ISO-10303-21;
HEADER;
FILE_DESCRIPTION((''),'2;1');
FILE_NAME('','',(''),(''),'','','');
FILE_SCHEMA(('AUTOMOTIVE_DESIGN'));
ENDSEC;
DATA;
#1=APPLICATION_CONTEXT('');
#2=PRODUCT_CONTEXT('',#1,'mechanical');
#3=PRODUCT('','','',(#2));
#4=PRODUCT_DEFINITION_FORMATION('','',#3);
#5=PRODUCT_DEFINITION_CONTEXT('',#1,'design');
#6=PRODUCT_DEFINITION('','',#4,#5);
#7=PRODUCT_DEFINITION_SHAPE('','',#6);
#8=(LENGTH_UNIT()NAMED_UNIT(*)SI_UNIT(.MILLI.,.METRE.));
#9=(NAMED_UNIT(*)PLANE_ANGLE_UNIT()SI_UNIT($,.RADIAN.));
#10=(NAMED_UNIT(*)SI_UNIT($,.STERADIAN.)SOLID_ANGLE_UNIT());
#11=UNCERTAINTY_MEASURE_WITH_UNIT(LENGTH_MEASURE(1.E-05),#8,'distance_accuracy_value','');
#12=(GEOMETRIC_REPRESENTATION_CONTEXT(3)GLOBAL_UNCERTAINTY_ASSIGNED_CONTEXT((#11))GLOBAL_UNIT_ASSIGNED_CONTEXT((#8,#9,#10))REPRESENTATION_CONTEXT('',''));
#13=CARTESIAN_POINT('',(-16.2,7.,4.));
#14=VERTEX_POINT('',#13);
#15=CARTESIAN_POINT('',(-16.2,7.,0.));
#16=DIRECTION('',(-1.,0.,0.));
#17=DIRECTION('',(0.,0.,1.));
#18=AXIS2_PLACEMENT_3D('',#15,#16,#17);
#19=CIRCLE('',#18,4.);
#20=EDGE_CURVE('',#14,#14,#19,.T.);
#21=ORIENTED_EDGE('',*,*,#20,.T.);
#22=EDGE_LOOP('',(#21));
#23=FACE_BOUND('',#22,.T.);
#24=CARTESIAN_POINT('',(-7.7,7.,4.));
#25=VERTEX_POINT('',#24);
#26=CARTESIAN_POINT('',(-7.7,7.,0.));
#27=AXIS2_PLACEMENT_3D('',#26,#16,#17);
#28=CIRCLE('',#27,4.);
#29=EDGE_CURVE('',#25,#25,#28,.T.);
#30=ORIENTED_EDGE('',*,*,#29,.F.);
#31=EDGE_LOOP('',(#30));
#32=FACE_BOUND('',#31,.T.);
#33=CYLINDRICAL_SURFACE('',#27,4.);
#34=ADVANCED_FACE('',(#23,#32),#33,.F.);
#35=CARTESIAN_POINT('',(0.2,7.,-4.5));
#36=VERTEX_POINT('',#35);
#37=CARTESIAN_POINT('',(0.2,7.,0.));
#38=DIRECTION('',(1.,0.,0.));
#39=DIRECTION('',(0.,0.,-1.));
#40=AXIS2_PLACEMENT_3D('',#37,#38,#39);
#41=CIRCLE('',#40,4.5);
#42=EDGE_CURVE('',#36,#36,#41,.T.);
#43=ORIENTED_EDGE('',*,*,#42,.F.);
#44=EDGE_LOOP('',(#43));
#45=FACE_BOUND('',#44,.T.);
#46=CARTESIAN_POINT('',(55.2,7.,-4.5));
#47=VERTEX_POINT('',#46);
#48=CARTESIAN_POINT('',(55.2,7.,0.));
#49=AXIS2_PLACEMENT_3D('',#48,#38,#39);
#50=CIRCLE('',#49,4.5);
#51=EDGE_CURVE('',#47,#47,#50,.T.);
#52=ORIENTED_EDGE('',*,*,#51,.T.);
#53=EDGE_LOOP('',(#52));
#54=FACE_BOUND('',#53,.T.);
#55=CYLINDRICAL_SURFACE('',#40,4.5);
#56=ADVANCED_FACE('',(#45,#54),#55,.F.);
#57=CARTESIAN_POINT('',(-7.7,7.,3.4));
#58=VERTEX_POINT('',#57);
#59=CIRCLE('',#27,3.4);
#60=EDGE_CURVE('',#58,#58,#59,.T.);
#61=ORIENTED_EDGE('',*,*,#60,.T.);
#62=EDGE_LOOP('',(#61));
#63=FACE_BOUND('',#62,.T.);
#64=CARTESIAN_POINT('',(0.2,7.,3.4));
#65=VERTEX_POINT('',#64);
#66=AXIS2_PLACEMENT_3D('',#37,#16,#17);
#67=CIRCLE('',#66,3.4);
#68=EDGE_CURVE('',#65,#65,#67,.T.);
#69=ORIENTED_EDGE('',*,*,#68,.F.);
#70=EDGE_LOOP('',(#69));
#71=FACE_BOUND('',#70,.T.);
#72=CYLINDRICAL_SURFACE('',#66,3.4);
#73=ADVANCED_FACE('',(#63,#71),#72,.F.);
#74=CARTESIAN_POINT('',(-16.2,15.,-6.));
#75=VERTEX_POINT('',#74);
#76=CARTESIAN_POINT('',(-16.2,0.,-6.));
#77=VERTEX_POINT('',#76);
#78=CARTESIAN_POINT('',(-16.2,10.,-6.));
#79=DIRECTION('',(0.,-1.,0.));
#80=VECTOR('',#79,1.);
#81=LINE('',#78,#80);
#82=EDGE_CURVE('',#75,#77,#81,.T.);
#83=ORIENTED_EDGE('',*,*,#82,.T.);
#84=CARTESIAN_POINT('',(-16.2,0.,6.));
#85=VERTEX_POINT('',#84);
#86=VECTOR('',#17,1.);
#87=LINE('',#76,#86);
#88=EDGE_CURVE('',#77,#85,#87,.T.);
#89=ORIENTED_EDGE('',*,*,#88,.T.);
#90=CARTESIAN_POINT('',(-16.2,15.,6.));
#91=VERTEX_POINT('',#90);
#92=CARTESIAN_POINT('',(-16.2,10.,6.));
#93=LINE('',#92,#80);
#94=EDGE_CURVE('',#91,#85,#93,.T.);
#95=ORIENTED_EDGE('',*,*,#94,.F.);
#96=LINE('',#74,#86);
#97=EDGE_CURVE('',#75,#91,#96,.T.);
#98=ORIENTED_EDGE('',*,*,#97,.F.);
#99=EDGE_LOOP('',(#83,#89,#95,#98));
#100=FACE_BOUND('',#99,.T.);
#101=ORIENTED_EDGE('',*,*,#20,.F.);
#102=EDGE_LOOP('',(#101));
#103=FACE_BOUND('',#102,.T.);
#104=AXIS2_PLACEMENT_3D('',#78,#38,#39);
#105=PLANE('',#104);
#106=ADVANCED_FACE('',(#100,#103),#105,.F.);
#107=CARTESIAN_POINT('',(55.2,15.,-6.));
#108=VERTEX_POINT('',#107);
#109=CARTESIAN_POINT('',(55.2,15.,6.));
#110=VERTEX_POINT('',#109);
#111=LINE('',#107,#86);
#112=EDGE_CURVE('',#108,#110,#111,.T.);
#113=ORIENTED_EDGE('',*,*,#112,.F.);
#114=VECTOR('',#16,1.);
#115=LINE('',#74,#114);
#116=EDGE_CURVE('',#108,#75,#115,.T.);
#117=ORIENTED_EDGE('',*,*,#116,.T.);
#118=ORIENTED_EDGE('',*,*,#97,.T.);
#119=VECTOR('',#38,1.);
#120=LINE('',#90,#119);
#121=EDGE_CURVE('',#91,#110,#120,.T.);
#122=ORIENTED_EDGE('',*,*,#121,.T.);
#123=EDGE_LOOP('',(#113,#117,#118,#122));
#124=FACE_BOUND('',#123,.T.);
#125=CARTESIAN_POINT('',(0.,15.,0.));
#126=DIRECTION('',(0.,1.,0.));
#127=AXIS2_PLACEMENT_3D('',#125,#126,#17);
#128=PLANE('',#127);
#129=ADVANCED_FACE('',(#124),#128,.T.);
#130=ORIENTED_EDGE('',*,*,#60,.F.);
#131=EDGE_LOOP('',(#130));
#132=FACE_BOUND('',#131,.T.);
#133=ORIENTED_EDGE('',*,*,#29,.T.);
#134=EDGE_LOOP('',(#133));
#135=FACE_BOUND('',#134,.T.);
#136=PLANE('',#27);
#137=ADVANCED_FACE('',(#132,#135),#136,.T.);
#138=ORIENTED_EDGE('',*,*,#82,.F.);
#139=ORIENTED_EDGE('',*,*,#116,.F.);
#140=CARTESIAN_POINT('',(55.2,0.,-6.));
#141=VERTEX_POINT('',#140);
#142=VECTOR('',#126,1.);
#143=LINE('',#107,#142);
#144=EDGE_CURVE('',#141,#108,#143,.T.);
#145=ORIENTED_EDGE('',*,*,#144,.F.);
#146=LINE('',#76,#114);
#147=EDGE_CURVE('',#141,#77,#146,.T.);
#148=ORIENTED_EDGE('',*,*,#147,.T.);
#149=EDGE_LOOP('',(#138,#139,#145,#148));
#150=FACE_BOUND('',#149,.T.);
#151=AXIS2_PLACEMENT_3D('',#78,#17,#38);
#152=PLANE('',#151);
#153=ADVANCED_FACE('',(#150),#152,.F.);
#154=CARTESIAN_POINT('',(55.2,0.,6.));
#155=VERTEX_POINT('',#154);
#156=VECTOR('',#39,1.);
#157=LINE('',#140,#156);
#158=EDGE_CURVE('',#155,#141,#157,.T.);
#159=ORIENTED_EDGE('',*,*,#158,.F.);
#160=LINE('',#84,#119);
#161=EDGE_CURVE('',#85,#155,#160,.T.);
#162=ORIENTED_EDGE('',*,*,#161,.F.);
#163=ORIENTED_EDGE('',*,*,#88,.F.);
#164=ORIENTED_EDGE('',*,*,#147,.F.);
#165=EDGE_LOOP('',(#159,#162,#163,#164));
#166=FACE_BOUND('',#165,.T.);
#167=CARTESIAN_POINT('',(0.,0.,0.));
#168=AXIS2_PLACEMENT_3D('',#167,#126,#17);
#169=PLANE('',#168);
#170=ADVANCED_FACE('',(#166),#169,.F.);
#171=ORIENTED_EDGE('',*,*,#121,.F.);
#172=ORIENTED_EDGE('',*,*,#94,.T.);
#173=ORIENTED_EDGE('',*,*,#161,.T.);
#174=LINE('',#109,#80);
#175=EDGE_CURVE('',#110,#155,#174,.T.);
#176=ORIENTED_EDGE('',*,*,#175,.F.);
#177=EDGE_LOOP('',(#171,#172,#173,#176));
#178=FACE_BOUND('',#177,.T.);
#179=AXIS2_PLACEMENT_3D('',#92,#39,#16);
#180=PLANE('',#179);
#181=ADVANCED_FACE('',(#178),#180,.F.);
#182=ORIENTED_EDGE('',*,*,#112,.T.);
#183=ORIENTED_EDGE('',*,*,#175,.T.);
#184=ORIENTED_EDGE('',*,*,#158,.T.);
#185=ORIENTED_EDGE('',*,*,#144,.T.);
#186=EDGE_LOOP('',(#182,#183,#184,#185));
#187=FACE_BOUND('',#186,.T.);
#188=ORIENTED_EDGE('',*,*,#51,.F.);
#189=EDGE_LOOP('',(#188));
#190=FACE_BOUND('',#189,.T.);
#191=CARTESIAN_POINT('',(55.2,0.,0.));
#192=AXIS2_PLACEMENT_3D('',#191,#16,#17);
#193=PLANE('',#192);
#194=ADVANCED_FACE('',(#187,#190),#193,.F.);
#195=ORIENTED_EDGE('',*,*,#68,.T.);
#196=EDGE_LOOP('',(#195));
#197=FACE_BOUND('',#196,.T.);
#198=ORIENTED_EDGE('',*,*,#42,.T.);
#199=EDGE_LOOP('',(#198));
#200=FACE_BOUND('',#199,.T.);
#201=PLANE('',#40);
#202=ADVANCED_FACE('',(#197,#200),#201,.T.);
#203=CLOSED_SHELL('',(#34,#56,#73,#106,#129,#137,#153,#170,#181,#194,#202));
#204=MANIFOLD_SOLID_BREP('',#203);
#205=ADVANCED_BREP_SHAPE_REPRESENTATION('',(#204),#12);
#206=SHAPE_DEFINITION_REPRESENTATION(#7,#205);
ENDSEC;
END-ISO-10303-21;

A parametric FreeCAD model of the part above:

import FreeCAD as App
import Part
import Sketcher
Q = App.Units.Quantity


def add_polygon(sketch, points):
    """Adds a closed chain of lines whose ends are joined by coincident constraints."""
    first, n = sketch.GeometryCount, len(points)
    for a, b in zip(points, points[1:] + points[:1]):
        sketch.addGeometry(Part.LineSegment(App.Vector(*a, 0), App.Vector(*b, 0)), False)
    for i in range(n):
        sketch.addConstraint(Sketcher.Constraint("Coincident", first + i, 2, first + (i + 1) % n, 1))

doc = App.newDocument("Part")
params = doc.addObject("Spreadsheet::Sheet", "Params")
for row, (alias, value) in enumerate([
    ("sketch1_height", "12 mm"),
    ("sketch1_width", "32.4 mm"),
    ("pad1_length", "10 mm"),
    ("sketch2_diameter", "8 mm"),
    ("pocket1_length", "8.5 mm"),
    ("sketch3_diameter", "6.8 mm"),
    ("pocket2_length", "7.9 mm"),
    ("sketch4_diameter", "9 mm"),
    ("pocket3_length", "16 mm"),
    ("sketch5_width", "32.4 mm"),
    ("pad2_length", "5 mm"),
    ("sketch6_width", "7.9 mm"),
    ("pad3_length", "5 mm"),
    ("sketch7_width", "16 mm"),
    ("sketch7_width2", "32.4 mm"),
    ("sketch7_width3", "7.9 mm"),
    ("pad4_length", "5 mm"),
    ("sketch8_width", "5 mm"),
    ("sketch8_height", "12 mm"),
    ("pad5_length", "32.4 mm"),
    ("sketch9_diameter", "8 mm"),
    ("pocket4_length", "8.5 mm"),
    ("sketch10_diameter", "6.8 mm"),
    ("pocket5_length", "7.9 mm"),
    ("sketch11_diameter", "9 mm"),
    ("pocket6_length", "16 mm"),
    ("sketch12_width", "15 mm"),
    ("sketch12_height", "12 mm"),
    ("pad6_length", "39 mm"),
    ("sketch13_diameter", "9 mm"),
    ("pocket7_length", "39 mm"),
], start=1):
    params.set(f"A{row}", alias)
    params.set(f"B{row}", "=" + value)
    params.setAlias(f"B{row}", alias)

body = doc.addObject("PartDesign::Body", "Body")

# Sketch on XZ plane
sketch1 = body.newObject("Sketcher::SketchObject", "Sketch")
sketch1.AttachmentSupport = (doc.getObject("XZ_Plane"), [""])
sketch1.MapMode = "FlatFace"
add_polygon(sketch1, [(-16, -6), (-16, 6), (16, 6), (16, -6)])  # lines 0-3
sketch1.addConstraint([
    Sketcher.Constraint("Vertical", 0),
    Sketcher.Constraint("Horizontal", 1),
    Sketcher.Constraint("Vertical", 2),
    Sketcher.Constraint("Horizontal", 3),
    Sketcher.Constraint("Symmetric", 0, 2, 2, 2, -1, 1),
    Sketcher.Constraint("DistanceY", 0, 1, 0, 2, Q("12 mm")),
    Sketcher.Constraint("DistanceX", 1, 1, 1, 2, Q("32.4 mm")),
])
sketch1.setExpression("Constraints[9]", "Params.sketch1_height")
sketch1.setExpression("Constraints[10]", "Params.sketch1_width")
pad1 = body.newObject("PartDesign::Pad", "Pad")
pad1.Profile = sketch1
pad1.setExpression("Length", "Params.pad1_length")
pad1.Reversed = True

# Sketch on YZ plane
sketch2 = body.newObject("Sketcher::SketchObject", "Sketch001")
sketch2.AttachmentSupport = (doc.getObject("YZ_Plane"), [""])
sketch2.MapMode = "FlatFace"
sketch2.AttachmentOffset = App.Placement(App.Vector(0, 0, -16.2), App.Rotation())
sketch2.addGeometry(Part.Circle(App.Vector(7, 0, 0), App.Vector(0, 0, 1), 4), False)
sketch2.addConstraint([
    Sketcher.Constraint("PointOnObject", 0, 3, -1),
    Sketcher.Constraint("Diameter", 0, Q("8 mm")),
    Sketcher.Constraint("DistanceX", -1, 1, 0, 3, Q("7 mm")),
])
sketch2.setExpression("Constraints[1]", "Params.sketch2_diameter")
pocket1 = body.newObject("PartDesign::Pocket", "Pocket")
pocket1.Profile = sketch2
pocket1.setExpression("Length", "Params.pocket1_length")
pocket1.Reversed = True

# Sketch on YZ plane
sketch3 = body.newObject("Sketcher::SketchObject", "Sketch002")
sketch3.AttachmentSupport = (doc.getObject("YZ_Plane"), [""])
sketch3.MapMode = "FlatFace"
sketch3.AttachmentOffset = App.Placement(App.Vector(0, 0, -7.7), App.Rotation())
sketch3.addGeometry(Part.Circle(App.Vector(7, 0, 0), App.Vector(0, 0, 1), 3.4), False)
sketch3.addConstraint([
    Sketcher.Constraint("PointOnObject", 0, 3, -1),
    Sketcher.Constraint("Diameter", 0, Q("6.8 mm")),
    Sketcher.Constraint("DistanceX", -1, 1, 0, 3, Q("7 mm")),
])
sketch3.setExpression("Constraints[1]", "Params.sketch3_diameter")
pocket2 = body.newObject("PartDesign::Pocket", "Pocket001")
pocket2.Profile = sketch3
pocket2.setExpression("Length", "Params.pocket2_length")
pocket2.Reversed = True

# Sketch on YZ plane
sketch4 = body.newObject("Sketcher::SketchObject", "Sketch003")
sketch4.AttachmentSupport = (doc.getObject("YZ_Plane"), [""])
sketch4.MapMode = "FlatFace"
sketch4.AttachmentOffset = App.Placement(App.Vector(0, 0, 16.2), App.Rotation())
sketch4.addGeometry(Part.Circle(App.Vector(7, 0, 0), App.Vector(0, 0, 1), 4.5), False)
sketch4.addConstraint([
    Sketcher.Constraint("PointOnObject", 0, 3, -1),
    Sketcher.Constraint("Diameter", 0, Q("9 mm")),
    Sketcher.Constraint("DistanceX", -1, 1, 0, 3, Q("7 mm")),
])
sketch4.setExpression("Constraints[1]", "Params.sketch4_diameter")
pocket3 = body.newObject("PartDesign::Pocket", "Pocket002")
pocket3.Profile = sketch4
pocket3.setExpression("Length", "Params.pocket3_length")

# Sketch on XZ plane
sketch5 = body.newObject("Sketcher::SketchObject", "Sketch004")
sketch5.AttachmentSupport = (doc.getObject("XZ_Plane"), [""])
sketch5.MapMode = "FlatFace"
sketch5.AttachmentOffset = App.Placement(App.Vector(0, 0, -10), App.Rotation())
add_polygon(sketch5, [(-16.2, -6), (-16.2, -3.4), (16.2, -3.4), (16.2, -6)])  # lines 0-3
sketch5.addConstraint([
    Sketcher.Constraint("Vertical", 0),
    Sketcher.Constraint("Horizontal", 1),
    Sketcher.Constraint("Vertical", 2),
    Sketcher.Constraint("Horizontal", 3),
    Sketcher.Constraint("DistanceX", 1, 1, 1, 2, Q("32.4 mm")),
    Sketcher.Constraint("DistanceY", 2, 2, -1, 1, Q("6 mm")),
    Sketcher.Constraint("DistanceX", 0, 2, -1, 1, Q("16.2 mm")),
    Sketcher.Constraint("DistanceY", 0, 1, 0, 2, Q("2.645898 mm")),
])
sketch5.setExpression("Constraints[8]", "Params.sketch5_width")
pad2 = body.newObject("PartDesign::Pad", "Pad001")
pad2.Profile = sketch5
pad2.setExpression("Length", "Params.pad2_length")
pad2.Reversed = True

# Sketch on XZ plane
sketch6 = body.newObject("Sketcher::SketchObject", "Sketch005")
sketch6.AttachmentSupport = (doc.getObject("XZ_Plane"), [""])
sketch6.MapMode = "FlatFace"
sketch6.AttachmentOffset = App.Placement(App.Vector(0, 0, -10), App.Rotation())
add_polygon(sketch6, [(-16.2, -3.4), (-16.2, -2.7), (-7.7, -2.6), (-7.7, -1.6), (0.2, -1.6), (0.2, -3.4)])  # lines 0-5
sketch6.addConstraint([
    Sketcher.Constraint("Vertical", 0),
    Sketcher.Constraint("Vertical", 2),
    Sketcher.Constraint("Horizontal", 3),
    Sketcher.Constraint("Vertical", 4),
    Sketcher.Constraint("DistanceX", 3, 1, 3, 2, Q("7.9 mm")),
    Sketcher.Constraint("DistanceX", 0, 2, -1, 1, Q("16.2 mm")),
    Sketcher.Constraint("DistanceX", 1, 2, -1, 1, Q("7.7 mm")),
    Sketcher.Constraint("DistanceY", 2, 2, -1, 1, Q("1.6 mm")),
    Sketcher.Constraint("DistanceY", 4, 2, 4, 1, Q("1.754102 mm")),
    Sketcher.Constraint("DistanceY", 2, 1, 2, 2, Q("1.045751 mm")),
    Sketcher.Constraint("DistanceY", 0, 1, 0, 2, Q("0.687057 mm")),
    Sketcher.Constraint("DistanceY", 5, 2, 1, 2, Q("0.726781 mm")),
])
sketch6.setExpression("Constraints[10]", "Params.sketch6_width")
pad3 = body.newObject("PartDesign::Pad", "Pad002")
pad3.Profile = sketch6
pad3.setExpression("Length", "Params.pad3_length")
pad3.Reversed = True

# Sketch on XZ plane
sketch7 = body.newObject("Sketcher::SketchObject", "Sketch006")
sketch7.AttachmentSupport = (doc.getObject("XZ_Plane"), [""])
sketch7.MapMode = "FlatFace"
sketch7.AttachmentOffset = App.Placement(App.Vector(0, 0, -10), App.Rotation())
add_polygon(sketch7, [(-16.2, 2.7), (-16.2, 6), (16.2, 6), (16.2, 3.4), (0.2, 3.4), (0.2, 1.6), (-7.7, 1.6), (-7.7, 2.6)])  # lines 0-7
sketch7.addConstraint([
    Sketcher.Constraint("Vertical", 0),
    Sketcher.Constraint("Horizontal", 1),
    Sketcher.Constraint("Vertical", 2),
    Sketcher.Constraint("Horizontal", 3),
    Sketcher.Constraint("Vertical", 4),
    Sketcher.Constraint("Horizontal", 5),
    Sketcher.Constraint("Vertical", 6),
    Sketcher.Constraint("DistanceX", 3, 2, 3, 1, Q("16 mm")),
    Sketcher.Constraint("DistanceX", 1, 1, 1, 2, Q("32.4 mm")),
    Sketcher.Constraint("DistanceX", 5, 2, 5, 1, Q("7.9 mm")),
    Sketcher.Constraint("DistanceY", -1, 1, 0, 2, Q("6 mm")),
    Sketcher.Constraint("DistanceX", 0, 2, -1, 1, Q("16.2 mm")),
    Sketcher.Constraint("DistanceY", -1, 1, 4, 2, Q("1.6 mm")),
    Sketcher.Constraint("DistanceY", 2, 2, 2, 1, Q("2.645898 mm")),
    Sketcher.Constraint("DistanceY", 6, 1, 6, 2, Q("1.045751 mm")),
    Sketcher.Constraint("DistanceY", 0, 1, 0, 2, Q("3.339325 mm")),
])
sketch7.setExpression("Constraints[15]", "Params.sketch7_width")
sketch7.setExpression("Constraints[16]", "Params.sketch7_width2")
sketch7.setExpression("Constraints[17]", "Params.sketch7_width3")
pad4 = body.newObject("PartDesign::Pad", "Pad003")
pad4.Profile = sketch7
pad4.setExpression("Length", "Params.pad4_length")
pad4.Reversed = True

# Sketch on YZ plane
sketch8 = body.newObject("Sketcher::SketchObject", "Sketch007")
sketch8.AttachmentSupport = (doc.getObject("YZ_Plane"), [""])
sketch8.MapMode = "FlatFace"
sketch8.AttachmentOffset = App.Placement(App.Vector(0, 0, -16.2), App.Rotation())
add_polygon(sketch8, [(15, -6), (10, -6), (10, 6), (15, 6)])  # lines 0-3
sketch8.addConstraint([
    Sketcher.Constraint("Horizontal", 0),
    Sketcher.Constraint("Vertical", 1),
    Sketcher.Constraint("Horizontal", 2),
    Sketcher.Constraint("Vertical", 3),
    Sketcher.Constraint("DistanceX", 0, 2, 0, 1, Q("5 mm")),
    Sketcher.Constraint("DistanceY", 1, 1, 1, 2, Q("12 mm")),
    Sketcher.Constraint("DistanceX", -1, 1, 0, 2, Q("10 mm")),
    Sketcher.Constraint("DistanceY", 0, 2, -1, 1, Q("6 mm")),
])
sketch8.setExpression("Constraints[8]", "Params.sketch8_width")
sketch8.setExpression("Constraints[9]", "Params.sketch8_height")
pad5 = body.newObject("PartDesign::Pad", "Pad004")
pad5.Profile = sketch8
pad5.setExpression("Length", "Params.pad5_length")

# Sketch on YZ plane
sketch9 = body.newObject("Sketcher::SketchObject", "Sketch008")
sketch9.AttachmentSupport = (doc.getObject("YZ_Plane"), [""])
sketch9.MapMode = "FlatFace"
sketch9.AttachmentOffset = App.Placement(App.Vector(0, 0, -16.2), App.Rotation())
sketch9.addGeometry(Part.Circle(App.Vector(7, 0, 0), App.Vector(0, 0, 1), 4), False)
sketch9.addConstraint([
    Sketcher.Constraint("PointOnObject", 0, 3, -1),
    Sketcher.Constraint("Diameter", 0, Q("8 mm")),
    Sketcher.Constraint("DistanceX", -1, 1, 0, 3, Q("7 mm")),
])
sketch9.setExpression("Constraints[1]", "Params.sketch9_diameter")
pocket4 = body.newObject("PartDesign::Pocket", "Pocket003")
pocket4.Profile = sketch9
pocket4.setExpression("Length", "Params.pocket4_length")
pocket4.Reversed = True

# Sketch on YZ plane
sketch10 = body.newObject("Sketcher::SketchObject", "Sketch009")
sketch10.AttachmentSupport = (doc.getObject("YZ_Plane"), [""])
sketch10.MapMode = "FlatFace"
sketch10.AttachmentOffset = App.Placement(App.Vector(0, 0, -7.7), App.Rotation())
sketch10.addGeometry(Part.Circle(App.Vector(7, 0, 0), App.Vector(0, 0, 1), 3.4), False)
sketch10.addConstraint([
    Sketcher.Constraint("PointOnObject", 0, 3, -1),
    Sketcher.Constraint("Diameter", 0, Q("6.8 mm")),
    Sketcher.Constraint("DistanceX", -1, 1, 0, 3, Q("7 mm")),
])
sketch10.setExpression("Constraints[1]", "Params.sketch10_diameter")
pocket5 = body.newObject("PartDesign::Pocket", "Pocket004")
pocket5.Profile = sketch10
pocket5.setExpression("Length", "Params.pocket5_length")
pocket5.Reversed = True

# Sketch on YZ plane
sketch11 = body.newObject("Sketcher::SketchObject", "Sketch010")
sketch11.AttachmentSupport = (doc.getObject("YZ_Plane"), [""])
sketch11.MapMode = "FlatFace"
sketch11.AttachmentOffset = App.Placement(App.Vector(0, 0, 16.2), App.Rotation())
sketch11.addGeometry(Part.Circle(App.Vector(7, 0, 0), App.Vector(0, 0, 1), 4.5), False)
sketch11.addConstraint([
    Sketcher.Constraint("PointOnObject", 0, 3, -1),
    Sketcher.Constraint("Diameter", 0, Q("9 mm")),
    Sketcher.Constraint("DistanceX", -1, 1, 0, 3, Q("7 mm")),
])
sketch11.setExpression("Constraints[1]", "Params.sketch11_diameter")
pocket6 = body.newObject("PartDesign::Pocket", "Pocket005")
pocket6.Profile = sketch11
pocket6.setExpression("Length", "Params.pocket6_length")

# Sketch on YZ plane
sketch12 = body.newObject("Sketcher::SketchObject", "Sketch011")
sketch12.AttachmentSupport = (doc.getObject("YZ_Plane"), [""])
sketch12.MapMode = "FlatFace"
sketch12.AttachmentOffset = App.Placement(App.Vector(0, 0, 16.2), App.Rotation())
add_polygon(sketch12, [(15, 6), (0, 6), (0, -6), (15, -6)])  # lines 0-3
sketch12.addConstraint([
    Sketcher.Constraint("Horizontal", 0),
    Sketcher.Constraint("Vertical", 1),
    Sketcher.Constraint("Horizontal", 2),
    Sketcher.Constraint("Vertical", 3),
    Sketcher.Constraint("Symmetric", 0, 2, 1, 2, -1, 1),
    Sketcher.Constraint("DistanceX", 0, 2, 0, 1, Q("15 mm")),
    Sketcher.Constraint("DistanceY", 1, 2, 1, 1, Q("12 mm")),
])
sketch12.setExpression("Constraints[9]", "Params.sketch12_width")
sketch12.setExpression("Constraints[10]", "Params.sketch12_height")
pad6 = body.newObject("PartDesign::Pad", "Pad005")
pad6.Profile = sketch12
pad6.setExpression("Length", "Params.pad6_length")

# Sketch on YZ plane
sketch13 = body.newObject("Sketcher::SketchObject", "Sketch012")
sketch13.AttachmentSupport = (doc.getObject("YZ_Plane"), [""])
sketch13.MapMode = "FlatFace"
sketch13.AttachmentOffset = App.Placement(App.Vector(0, 0, 55.2), App.Rotation())
sketch13.addGeometry(Part.Circle(App.Vector(7, 0, 0), App.Vector(0, 0, 1), 4.5), False)
sketch13.addConstraint([
    Sketcher.Constraint("PointOnObject", 0, 3, -1),
    Sketcher.Constraint("Diameter", 0, Q("9 mm")),
    Sketcher.Constraint("DistanceX", -1, 1, 0, 3, Q("7 mm")),
])
sketch13.setExpression("Constraints[1]", "Params.sketch13_diameter")
pocket7 = body.newObject("PartDesign::Pocket", "Pocket006")
pocket7.Profile = sketch13
pocket7.setExpression("Length", "Params.pocket7_length")

doc.recompute()
